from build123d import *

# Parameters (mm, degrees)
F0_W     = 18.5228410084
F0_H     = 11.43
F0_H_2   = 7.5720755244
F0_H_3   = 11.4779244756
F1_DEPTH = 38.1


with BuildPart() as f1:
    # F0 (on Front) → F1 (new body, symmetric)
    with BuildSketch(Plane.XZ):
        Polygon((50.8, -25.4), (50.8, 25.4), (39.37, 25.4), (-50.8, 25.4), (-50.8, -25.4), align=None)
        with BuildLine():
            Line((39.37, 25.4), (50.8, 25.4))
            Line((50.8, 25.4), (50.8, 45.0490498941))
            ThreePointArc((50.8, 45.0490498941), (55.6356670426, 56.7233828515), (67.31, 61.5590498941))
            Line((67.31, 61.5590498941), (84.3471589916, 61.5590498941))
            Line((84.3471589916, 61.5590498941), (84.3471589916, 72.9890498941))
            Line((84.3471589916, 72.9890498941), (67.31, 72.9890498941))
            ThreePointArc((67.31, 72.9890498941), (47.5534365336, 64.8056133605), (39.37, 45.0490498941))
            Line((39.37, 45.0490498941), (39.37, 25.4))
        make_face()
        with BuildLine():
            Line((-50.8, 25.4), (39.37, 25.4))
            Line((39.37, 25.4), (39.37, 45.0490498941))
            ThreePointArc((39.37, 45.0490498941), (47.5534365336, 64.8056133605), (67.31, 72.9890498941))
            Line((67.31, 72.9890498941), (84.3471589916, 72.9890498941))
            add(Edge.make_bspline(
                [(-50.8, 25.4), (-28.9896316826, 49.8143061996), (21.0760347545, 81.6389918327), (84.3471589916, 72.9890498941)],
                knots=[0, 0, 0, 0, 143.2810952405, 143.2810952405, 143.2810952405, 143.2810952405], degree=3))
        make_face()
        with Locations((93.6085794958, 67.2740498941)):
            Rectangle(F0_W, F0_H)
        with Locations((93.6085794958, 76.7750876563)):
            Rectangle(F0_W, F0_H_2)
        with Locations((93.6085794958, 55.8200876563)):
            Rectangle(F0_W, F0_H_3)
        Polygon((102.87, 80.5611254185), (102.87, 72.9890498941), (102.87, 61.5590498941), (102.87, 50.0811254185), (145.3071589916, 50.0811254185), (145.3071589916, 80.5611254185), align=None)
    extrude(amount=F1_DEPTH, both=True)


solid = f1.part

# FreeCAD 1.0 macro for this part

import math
import FreeCAD as App
import Part
import Sketcher
from FreeCAD import Vector
Q = App.Units.Quantity

doc = App.newDocument("Part")
body = doc.addObject("PartDesign::Body", "Body")

# Sketch on XZ plane
sketch1 = doc.addObject("Sketcher::SketchObject", "Sketch")
body.addObject(sketch1)
sketch1.AttachmentSupport = (doc.XZ_Plane, [""])
sketch1.MapMode = "FlatFace"
sketch1.addGeometry(Part.LineSegment(Vector(50.8, -25.4, 0), Vector(50.8, 45.04905, 0)), False)
sketch1.addGeometry(Part.ArcOfCircle(Part.Circle(Vector(67.31, 45.04905, 0), Vector(0, 0, 1), 16.51), math.radians(90), math.radians(180)), False)
sketch1.addGeometry(Part.LineSegment(Vector(67.31, 61.55905, 0), Vector(84.347159, 61.55905, 0)), False)
sketch1.addGeometry(Part.LineSegment(Vector(84.347159, 61.55905, 0), Vector(84.347159, 50.081125, 0)), False)
sketch1.addGeometry(Part.LineSegment(Vector(84.347159, 50.081125, 0), Vector(145.307159, 50.081125, 0)), False)
sketch1.addGeometry(Part.LineSegment(Vector(145.307159, 50.081125, 0), Vector(145.307159, 80.561125, 0)), False)
sketch1.addGeometry(Part.LineSegment(Vector(145.307159, 80.561125, 0), Vector(84.347159, 80.561125, 0)), False)
sketch1.addGeometry(Part.LineSegment(Vector(84.347159, 80.561125, 0), Vector(84.347159, 72.98905, 0)), False)
sketch1.addGeometry(Part.BSplineCurve([Vector(-50.8, 25.4, 0), Vector(-28.989632, 49.814306, 0), Vector(21.076035, 81.638992, 0), Vector(84.347159, 72.98905, 0)], [4, 4], [0, 143.281095241], False, 3, [1, 1, 1, 1], False), False)
sketch1.addGeometry(Part.LineSegment(Vector(-50.8, 25.4, 0), Vector(-50.8, -25.4, 0)), False)
sketch1.addGeometry(Part.LineSegment(Vector(-50.8, -25.4, 0), Vector(50.8, -25.4, 0)), False)
sketch1.addConstraint(Sketcher.Constraint("Block", 8))
sketch1.addConstraint(Sketcher.Constraint("Tangent", 0, 2, 1, 2))
sketch1.addConstraint(Sketcher.Constraint("Tangent", 1, 1, 2, 1))
sketch1.addConstraint(Sketcher.Constraint("Coincident", 2, 2, 3, 1))
sketch1.addConstraint(Sketcher.Constraint("Coincident", 3, 2, 4, 1))
sketch1.addConstraint(Sketcher.Constraint("Coincident", 4, 2, 5, 1))
sketch1.addConstraint(Sketcher.Constraint("Coincident", 5, 2, 6, 1))
sketch1.addConstraint(Sketcher.Constraint("Coincident", 6, 2, 7, 1))
sketch1.addConstraint(Sketcher.Constraint("Coincident", 7, 2, 8, 2))
sketch1.addConstraint(Sketcher.Constraint("Coincident", 8, 1, 9, 1))
sketch1.addConstraint(Sketcher.Constraint("Coincident", 9, 2, 10, 1))
sketch1.addConstraint(Sketcher.Constraint("Coincident", 10, 2, 0, 1))
sketch1.addConstraint(Sketcher.Constraint("Vertical", 0))
sketch1.addConstraint(Sketcher.Constraint("Horizontal", 2))
sketch1.addConstraint(Sketcher.Constraint("Vertical", 3))
sketch1.addConstraint(Sketcher.Constraint("Horizontal", 4))
sketch1.addConstraint(Sketcher.Constraint("Vertical", 5))
sketch1.addConstraint(Sketcher.Constraint("Horizontal", 6))
sketch1.addConstraint(Sketcher.Constraint("Vertical", 7))
sketch1.addConstraint(Sketcher.Constraint("Vertical", 9))
sketch1.addConstraint(Sketcher.Constraint("Horizontal", 10))
sketch1.addConstraint(Sketcher.Constraint("Vertical", 3, 2, 6, 2))
sketch1.addConstraint(Sketcher.Constraint("DistanceX", 10, 1, 10, 2, Q("4 in")))
sketch1.addConstraint(Sketcher.Constraint("DistanceY", 9, 2, 9, 1, Q("2 in")))
sketch1.addConstraint(Sketcher.Constraint("Radius", 1, Q("0.65 in")))
sketch1.addConstraint(Sketcher.Constraint("DistanceX", 4, 1, 4, 2, Q("2.4 in")))
sketch1.addConstraint(Sketcher.Constraint("DistanceY", 5, 1, 5, 2, Q("1.2 in")))
sketch1.addConstraint(Sketcher.Constraint("DistanceY", 1, 3, 7, 2, Q("1.1 in")))
sketch1.addConstraint(Sketcher.Constraint("DistanceY", 3, 2, 3, 1, Q("11.477924 mm")))
pad1 = doc.addObject("PartDesign::Pad", "Pad")
body.addObject(pad1)
pad1.Profile = sketch1
pad1.Length = Q("3 in")
pad1.Midplane = True

doc.recompute()
